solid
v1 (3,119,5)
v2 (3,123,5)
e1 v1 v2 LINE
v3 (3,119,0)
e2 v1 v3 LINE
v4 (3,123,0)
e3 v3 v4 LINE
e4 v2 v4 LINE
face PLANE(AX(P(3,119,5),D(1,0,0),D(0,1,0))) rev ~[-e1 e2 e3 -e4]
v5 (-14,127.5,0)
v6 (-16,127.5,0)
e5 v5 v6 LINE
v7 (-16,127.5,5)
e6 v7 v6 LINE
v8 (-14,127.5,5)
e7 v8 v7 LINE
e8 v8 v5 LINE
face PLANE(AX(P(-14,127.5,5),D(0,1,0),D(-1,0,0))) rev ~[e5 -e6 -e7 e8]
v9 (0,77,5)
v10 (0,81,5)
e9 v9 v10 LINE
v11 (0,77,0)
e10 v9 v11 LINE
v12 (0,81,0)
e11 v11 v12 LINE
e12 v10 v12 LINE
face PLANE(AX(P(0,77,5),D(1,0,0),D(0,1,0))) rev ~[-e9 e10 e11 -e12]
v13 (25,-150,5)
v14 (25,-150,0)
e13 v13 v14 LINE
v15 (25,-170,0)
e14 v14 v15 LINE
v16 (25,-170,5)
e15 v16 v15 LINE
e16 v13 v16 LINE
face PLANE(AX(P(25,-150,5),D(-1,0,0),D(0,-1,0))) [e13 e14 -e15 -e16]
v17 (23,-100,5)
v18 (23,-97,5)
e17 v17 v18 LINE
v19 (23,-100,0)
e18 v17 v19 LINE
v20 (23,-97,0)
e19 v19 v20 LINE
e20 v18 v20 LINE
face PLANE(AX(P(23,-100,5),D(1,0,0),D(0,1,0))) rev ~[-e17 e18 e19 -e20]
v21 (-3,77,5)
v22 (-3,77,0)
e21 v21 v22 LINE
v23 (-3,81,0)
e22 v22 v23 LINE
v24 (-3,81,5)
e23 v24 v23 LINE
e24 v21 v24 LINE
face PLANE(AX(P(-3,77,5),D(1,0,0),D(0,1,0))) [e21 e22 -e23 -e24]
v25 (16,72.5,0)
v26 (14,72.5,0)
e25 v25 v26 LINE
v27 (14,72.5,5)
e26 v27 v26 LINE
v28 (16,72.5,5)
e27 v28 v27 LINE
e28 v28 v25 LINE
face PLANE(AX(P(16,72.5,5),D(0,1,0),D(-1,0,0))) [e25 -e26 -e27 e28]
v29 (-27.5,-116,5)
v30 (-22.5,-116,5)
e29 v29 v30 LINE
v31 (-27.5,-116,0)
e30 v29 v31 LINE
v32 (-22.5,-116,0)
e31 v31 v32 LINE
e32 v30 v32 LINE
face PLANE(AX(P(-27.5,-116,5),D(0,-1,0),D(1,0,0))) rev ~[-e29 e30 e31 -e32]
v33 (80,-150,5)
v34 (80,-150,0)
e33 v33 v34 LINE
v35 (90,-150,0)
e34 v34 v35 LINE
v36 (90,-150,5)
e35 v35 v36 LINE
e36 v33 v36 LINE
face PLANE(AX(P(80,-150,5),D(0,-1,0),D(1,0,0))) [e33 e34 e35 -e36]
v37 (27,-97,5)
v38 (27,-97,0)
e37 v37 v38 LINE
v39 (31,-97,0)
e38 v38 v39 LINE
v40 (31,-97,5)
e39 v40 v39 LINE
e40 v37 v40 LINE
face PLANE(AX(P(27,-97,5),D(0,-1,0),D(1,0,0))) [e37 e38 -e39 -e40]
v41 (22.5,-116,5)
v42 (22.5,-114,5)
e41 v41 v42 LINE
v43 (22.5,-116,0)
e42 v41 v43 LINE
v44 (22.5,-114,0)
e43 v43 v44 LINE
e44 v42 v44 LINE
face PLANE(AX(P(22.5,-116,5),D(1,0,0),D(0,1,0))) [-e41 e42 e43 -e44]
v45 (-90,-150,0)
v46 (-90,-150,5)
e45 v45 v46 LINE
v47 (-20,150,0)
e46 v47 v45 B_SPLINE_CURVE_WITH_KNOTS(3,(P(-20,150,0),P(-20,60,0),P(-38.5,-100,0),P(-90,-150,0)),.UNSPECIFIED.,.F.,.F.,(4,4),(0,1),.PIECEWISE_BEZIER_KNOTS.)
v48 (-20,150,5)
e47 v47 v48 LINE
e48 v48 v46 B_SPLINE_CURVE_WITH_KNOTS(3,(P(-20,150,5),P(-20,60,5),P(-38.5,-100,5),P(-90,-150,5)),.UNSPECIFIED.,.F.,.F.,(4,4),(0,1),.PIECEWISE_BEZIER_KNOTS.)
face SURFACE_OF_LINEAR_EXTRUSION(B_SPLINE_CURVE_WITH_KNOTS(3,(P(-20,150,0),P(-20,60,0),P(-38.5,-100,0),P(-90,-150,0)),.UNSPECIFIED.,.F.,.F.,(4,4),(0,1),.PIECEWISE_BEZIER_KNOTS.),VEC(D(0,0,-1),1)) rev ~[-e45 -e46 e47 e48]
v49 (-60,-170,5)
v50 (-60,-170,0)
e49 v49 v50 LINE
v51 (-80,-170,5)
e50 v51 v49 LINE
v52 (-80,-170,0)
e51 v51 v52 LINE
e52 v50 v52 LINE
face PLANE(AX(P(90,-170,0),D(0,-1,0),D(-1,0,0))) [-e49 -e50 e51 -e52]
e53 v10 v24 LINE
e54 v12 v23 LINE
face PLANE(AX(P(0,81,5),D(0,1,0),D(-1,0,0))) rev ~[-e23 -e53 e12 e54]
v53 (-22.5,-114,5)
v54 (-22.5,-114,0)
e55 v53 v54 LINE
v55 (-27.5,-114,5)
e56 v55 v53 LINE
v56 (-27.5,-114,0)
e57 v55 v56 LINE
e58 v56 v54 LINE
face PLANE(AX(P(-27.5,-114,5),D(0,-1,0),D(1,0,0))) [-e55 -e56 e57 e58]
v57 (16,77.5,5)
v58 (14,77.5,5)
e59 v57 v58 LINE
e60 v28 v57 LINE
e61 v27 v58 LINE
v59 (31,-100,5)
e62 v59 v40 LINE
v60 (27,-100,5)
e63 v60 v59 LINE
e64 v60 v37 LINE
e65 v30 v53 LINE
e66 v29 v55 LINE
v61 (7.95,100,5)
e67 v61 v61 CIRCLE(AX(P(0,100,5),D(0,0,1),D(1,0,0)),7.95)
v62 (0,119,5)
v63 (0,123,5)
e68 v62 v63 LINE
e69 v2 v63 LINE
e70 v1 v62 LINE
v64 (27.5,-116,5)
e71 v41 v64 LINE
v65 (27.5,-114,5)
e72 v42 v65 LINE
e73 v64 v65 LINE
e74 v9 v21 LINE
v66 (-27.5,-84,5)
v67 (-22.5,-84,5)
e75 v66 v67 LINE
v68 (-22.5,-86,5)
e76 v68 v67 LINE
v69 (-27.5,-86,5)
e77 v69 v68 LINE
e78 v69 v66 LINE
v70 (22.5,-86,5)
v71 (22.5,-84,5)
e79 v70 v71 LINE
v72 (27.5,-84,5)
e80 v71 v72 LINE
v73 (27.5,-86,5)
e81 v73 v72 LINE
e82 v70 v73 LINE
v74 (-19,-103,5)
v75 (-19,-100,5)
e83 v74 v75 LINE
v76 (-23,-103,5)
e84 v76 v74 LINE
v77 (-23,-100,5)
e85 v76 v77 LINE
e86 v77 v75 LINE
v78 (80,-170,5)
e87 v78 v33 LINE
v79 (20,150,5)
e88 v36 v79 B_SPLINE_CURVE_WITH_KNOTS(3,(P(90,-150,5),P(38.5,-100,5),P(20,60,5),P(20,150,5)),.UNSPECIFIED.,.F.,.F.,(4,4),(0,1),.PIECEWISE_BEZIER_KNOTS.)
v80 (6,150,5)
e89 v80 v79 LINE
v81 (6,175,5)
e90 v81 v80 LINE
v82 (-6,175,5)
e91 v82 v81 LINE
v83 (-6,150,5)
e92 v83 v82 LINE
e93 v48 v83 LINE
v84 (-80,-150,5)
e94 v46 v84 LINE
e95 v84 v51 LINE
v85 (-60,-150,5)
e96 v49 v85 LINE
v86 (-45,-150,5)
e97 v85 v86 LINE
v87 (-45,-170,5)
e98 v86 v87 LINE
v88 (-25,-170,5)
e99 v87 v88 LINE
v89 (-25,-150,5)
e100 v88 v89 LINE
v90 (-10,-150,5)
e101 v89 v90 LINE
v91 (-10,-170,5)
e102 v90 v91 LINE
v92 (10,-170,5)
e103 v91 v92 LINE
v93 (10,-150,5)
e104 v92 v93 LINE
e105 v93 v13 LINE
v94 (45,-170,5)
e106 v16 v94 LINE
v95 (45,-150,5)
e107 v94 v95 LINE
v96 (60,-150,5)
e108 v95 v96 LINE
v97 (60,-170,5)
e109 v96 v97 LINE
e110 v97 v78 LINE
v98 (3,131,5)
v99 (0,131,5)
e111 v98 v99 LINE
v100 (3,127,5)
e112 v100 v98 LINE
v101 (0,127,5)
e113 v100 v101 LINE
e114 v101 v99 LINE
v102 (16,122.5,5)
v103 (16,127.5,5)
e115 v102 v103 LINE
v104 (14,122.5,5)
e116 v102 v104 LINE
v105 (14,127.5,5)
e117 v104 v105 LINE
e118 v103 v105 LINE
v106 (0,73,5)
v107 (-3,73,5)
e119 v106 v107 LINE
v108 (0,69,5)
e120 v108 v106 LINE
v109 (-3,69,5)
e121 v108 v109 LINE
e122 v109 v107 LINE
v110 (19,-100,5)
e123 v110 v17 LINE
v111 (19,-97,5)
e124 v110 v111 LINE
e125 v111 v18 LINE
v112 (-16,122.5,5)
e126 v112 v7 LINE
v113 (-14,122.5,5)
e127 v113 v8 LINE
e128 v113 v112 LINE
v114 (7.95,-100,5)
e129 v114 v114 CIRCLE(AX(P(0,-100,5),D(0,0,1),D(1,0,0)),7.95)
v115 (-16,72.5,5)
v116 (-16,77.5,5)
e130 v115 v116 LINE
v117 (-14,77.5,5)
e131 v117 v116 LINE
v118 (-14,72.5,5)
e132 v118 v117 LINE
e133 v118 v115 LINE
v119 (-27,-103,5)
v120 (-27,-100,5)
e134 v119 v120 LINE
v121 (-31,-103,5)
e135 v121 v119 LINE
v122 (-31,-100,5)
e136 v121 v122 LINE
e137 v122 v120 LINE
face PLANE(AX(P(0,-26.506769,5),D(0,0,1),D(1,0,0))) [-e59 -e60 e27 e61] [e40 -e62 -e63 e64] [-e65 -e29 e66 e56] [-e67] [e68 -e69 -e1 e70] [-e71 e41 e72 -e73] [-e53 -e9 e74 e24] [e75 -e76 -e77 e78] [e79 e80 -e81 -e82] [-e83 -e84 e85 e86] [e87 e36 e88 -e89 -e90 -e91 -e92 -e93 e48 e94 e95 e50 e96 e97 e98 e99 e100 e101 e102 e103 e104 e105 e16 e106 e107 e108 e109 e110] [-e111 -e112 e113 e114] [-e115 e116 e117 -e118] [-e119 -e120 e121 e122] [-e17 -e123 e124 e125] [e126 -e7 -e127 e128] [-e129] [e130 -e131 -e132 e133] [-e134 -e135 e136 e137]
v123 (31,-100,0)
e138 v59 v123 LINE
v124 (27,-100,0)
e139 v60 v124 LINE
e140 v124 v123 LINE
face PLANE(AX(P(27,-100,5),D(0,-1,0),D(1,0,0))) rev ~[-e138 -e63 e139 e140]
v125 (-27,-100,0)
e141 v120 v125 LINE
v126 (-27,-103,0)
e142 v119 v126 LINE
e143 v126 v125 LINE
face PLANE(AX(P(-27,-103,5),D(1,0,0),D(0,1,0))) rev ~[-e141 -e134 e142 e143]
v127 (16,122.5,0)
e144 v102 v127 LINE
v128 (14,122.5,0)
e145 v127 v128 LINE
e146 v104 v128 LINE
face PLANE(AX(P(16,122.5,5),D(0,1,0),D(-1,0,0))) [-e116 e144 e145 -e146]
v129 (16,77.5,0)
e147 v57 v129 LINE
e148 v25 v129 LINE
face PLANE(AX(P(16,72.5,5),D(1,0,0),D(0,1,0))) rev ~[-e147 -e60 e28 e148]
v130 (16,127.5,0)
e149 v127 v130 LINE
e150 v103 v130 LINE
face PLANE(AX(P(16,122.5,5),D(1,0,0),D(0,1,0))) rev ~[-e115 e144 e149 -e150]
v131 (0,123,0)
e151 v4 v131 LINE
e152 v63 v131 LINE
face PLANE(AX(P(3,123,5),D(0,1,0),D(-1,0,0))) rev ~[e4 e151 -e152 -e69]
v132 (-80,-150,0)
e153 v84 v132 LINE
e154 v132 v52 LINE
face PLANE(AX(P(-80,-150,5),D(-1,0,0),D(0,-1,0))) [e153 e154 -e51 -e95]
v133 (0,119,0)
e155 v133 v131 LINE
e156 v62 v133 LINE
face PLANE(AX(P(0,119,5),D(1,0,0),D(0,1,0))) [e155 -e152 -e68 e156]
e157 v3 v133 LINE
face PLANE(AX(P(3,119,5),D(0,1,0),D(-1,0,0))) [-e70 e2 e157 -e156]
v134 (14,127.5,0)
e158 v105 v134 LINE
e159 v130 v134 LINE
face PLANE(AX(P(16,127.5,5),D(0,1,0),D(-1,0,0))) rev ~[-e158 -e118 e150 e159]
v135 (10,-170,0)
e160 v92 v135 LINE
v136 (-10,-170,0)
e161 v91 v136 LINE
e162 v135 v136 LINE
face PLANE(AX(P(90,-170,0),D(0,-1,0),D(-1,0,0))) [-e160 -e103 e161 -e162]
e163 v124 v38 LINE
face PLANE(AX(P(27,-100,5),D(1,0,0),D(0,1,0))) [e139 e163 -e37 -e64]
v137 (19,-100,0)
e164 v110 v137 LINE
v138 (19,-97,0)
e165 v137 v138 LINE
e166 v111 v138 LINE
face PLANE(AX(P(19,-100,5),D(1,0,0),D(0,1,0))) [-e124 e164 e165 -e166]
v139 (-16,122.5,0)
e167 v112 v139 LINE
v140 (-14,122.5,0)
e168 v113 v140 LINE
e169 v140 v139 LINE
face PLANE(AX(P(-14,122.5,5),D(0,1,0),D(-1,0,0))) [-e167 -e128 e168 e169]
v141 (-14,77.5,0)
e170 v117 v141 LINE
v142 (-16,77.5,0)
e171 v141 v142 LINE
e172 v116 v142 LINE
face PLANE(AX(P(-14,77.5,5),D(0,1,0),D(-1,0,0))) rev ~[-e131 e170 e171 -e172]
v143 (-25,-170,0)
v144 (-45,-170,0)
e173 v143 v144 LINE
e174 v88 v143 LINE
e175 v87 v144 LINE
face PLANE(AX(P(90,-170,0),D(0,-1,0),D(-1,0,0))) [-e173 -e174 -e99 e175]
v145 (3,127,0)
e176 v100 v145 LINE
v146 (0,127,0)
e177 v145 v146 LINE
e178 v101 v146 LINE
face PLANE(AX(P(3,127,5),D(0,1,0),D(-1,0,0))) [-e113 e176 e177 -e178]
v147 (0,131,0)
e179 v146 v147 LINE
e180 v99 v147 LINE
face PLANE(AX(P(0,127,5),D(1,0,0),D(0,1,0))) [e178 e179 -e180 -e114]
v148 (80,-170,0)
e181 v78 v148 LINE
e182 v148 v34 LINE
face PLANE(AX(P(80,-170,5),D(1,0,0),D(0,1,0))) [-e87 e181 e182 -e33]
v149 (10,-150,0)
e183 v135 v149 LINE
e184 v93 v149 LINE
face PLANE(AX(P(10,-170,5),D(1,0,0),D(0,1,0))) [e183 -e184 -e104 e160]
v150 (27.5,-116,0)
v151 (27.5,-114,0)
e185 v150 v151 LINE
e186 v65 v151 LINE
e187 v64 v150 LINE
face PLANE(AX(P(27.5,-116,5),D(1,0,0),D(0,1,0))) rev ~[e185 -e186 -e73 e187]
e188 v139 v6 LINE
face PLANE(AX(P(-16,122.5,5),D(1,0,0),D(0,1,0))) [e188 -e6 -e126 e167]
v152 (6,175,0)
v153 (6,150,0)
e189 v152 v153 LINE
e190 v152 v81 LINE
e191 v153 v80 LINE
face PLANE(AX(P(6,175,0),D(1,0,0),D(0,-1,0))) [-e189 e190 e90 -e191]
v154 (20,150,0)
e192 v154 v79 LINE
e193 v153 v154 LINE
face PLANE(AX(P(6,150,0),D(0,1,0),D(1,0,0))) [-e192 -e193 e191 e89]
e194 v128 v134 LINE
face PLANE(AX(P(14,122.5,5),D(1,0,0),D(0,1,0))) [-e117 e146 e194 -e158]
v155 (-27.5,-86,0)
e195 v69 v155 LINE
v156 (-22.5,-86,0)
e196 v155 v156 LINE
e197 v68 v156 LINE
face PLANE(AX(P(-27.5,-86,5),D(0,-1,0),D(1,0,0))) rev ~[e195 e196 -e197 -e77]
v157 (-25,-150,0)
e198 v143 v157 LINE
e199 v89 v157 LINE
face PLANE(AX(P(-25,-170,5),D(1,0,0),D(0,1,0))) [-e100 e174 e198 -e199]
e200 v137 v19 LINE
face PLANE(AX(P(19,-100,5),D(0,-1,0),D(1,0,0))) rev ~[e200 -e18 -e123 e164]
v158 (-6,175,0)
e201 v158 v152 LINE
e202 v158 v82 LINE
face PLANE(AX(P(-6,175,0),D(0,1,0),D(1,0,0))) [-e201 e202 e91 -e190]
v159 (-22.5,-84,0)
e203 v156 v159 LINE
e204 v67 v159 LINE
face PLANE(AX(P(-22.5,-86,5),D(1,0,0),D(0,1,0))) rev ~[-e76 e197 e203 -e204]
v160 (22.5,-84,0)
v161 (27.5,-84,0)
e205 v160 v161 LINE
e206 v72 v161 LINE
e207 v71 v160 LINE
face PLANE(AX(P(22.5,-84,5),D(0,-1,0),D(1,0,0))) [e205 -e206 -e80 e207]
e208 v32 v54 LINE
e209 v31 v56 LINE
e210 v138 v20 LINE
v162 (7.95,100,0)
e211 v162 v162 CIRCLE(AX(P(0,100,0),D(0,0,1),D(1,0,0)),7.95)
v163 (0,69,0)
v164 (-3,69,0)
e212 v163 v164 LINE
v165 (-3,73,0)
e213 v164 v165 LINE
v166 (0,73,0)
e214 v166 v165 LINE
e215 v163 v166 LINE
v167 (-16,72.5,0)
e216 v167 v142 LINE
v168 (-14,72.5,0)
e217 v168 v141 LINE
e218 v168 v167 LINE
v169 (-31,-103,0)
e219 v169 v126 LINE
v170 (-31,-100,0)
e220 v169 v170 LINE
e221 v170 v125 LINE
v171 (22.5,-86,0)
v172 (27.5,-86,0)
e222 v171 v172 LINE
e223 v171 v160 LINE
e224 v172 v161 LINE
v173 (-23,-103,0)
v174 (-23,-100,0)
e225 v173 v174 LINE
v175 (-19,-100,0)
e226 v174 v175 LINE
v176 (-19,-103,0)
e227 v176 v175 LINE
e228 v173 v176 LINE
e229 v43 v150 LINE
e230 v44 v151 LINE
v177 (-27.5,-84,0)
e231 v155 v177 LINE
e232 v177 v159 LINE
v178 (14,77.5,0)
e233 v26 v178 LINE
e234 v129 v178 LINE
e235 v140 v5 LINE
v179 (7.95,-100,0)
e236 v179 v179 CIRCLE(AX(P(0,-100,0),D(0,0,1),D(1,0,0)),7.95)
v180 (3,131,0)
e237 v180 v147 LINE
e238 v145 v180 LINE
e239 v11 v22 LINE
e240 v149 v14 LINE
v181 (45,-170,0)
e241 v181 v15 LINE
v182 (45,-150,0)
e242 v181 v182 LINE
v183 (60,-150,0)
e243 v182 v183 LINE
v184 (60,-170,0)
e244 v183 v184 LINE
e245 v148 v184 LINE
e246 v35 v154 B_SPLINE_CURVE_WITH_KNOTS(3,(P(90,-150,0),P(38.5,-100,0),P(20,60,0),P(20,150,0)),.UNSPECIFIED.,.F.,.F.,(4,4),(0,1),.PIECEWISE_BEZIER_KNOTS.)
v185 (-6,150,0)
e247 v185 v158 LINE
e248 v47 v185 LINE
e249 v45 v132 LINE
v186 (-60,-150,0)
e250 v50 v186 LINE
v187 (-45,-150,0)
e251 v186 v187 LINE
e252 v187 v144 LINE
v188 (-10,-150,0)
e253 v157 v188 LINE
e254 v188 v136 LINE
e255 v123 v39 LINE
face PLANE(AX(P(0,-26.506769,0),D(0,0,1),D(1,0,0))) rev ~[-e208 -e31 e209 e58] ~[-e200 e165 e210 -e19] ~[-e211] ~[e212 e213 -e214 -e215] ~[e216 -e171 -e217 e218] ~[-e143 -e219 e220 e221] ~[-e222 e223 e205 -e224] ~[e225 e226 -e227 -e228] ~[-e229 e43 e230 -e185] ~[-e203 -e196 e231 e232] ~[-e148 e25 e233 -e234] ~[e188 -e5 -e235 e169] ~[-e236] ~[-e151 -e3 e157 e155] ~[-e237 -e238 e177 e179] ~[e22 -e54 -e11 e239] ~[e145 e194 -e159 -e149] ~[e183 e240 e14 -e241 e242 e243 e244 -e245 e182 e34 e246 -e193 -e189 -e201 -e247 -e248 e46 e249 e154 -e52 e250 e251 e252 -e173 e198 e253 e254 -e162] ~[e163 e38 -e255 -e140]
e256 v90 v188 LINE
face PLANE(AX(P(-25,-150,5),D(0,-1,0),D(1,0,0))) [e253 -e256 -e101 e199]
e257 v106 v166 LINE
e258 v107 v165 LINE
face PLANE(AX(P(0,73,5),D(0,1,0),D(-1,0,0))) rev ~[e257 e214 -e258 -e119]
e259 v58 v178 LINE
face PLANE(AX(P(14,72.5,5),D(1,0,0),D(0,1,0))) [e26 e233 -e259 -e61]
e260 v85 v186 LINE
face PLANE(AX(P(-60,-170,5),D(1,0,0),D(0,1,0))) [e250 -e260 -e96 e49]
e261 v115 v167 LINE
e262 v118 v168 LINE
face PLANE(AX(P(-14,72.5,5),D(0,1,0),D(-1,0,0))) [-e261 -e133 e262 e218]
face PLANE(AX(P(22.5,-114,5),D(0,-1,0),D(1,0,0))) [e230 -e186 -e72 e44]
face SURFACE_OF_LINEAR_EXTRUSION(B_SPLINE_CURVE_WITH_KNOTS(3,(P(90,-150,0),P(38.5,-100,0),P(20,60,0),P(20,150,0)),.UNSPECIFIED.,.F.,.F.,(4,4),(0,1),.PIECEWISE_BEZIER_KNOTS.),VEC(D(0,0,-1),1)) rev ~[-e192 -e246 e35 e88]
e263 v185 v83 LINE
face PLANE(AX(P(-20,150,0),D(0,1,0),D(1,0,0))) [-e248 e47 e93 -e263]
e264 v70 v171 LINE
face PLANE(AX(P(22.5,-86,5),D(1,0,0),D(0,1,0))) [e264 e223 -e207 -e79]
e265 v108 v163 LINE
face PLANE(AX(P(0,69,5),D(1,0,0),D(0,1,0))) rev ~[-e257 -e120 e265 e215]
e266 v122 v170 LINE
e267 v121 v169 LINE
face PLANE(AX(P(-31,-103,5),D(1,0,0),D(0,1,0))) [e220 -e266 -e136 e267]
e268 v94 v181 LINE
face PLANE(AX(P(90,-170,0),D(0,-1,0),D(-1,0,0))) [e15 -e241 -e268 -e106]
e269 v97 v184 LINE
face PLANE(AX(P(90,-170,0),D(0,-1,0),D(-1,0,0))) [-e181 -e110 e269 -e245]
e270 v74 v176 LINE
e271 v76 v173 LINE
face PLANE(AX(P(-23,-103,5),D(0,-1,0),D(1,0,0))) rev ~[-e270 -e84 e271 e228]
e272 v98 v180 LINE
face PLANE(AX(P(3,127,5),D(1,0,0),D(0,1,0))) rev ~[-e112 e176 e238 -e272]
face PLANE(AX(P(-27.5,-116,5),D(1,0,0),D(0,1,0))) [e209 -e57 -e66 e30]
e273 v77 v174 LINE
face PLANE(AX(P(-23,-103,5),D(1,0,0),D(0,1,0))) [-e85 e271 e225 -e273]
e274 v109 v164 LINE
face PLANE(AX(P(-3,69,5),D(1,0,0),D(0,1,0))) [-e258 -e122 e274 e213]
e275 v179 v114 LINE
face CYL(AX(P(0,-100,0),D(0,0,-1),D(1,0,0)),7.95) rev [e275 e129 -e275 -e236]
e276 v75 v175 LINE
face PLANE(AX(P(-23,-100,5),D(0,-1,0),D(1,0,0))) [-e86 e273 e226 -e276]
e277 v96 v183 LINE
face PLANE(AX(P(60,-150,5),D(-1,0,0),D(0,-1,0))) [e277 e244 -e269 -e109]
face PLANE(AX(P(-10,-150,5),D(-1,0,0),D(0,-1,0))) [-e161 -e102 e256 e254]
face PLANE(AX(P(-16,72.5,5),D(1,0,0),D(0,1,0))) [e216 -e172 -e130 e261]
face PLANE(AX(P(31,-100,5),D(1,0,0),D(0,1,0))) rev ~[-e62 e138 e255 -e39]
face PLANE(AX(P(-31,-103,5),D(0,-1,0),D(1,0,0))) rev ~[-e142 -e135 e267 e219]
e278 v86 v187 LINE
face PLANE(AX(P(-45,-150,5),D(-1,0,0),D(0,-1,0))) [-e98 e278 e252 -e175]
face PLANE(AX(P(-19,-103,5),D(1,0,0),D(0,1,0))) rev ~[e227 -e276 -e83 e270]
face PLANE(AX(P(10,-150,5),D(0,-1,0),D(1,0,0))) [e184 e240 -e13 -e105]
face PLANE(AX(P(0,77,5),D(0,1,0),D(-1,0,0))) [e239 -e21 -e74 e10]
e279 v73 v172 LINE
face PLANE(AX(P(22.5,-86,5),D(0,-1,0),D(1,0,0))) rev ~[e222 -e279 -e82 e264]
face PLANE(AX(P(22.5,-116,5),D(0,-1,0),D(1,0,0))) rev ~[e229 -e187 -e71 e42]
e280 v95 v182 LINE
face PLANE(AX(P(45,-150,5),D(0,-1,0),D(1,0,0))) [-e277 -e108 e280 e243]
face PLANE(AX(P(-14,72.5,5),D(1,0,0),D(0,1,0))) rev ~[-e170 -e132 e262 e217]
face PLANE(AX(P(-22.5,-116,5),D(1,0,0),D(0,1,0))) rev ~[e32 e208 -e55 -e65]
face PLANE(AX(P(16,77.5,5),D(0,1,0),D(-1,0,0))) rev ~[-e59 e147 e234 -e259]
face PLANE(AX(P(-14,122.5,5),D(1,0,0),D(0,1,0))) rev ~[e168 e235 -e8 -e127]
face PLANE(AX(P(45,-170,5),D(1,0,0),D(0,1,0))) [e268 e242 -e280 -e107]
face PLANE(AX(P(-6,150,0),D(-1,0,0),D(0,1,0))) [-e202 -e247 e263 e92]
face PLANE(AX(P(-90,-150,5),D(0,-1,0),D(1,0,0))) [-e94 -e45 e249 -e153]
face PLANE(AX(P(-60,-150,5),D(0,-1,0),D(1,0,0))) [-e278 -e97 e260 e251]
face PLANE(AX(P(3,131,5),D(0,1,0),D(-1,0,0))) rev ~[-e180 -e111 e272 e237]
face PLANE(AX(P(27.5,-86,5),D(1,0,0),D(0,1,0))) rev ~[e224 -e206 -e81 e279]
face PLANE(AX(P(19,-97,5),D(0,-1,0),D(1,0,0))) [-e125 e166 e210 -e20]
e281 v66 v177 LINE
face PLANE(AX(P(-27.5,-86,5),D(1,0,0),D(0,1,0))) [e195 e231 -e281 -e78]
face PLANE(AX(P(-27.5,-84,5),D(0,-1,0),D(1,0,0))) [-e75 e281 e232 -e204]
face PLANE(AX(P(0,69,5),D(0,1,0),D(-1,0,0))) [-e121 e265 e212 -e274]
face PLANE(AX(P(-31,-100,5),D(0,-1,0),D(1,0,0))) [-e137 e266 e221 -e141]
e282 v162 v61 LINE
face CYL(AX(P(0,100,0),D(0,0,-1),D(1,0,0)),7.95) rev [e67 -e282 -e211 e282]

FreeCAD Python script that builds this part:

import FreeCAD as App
import Part
import Sketcher
Q = App.Units.Quantity

doc = App.newDocument("Part")
params = doc.addObject("Spreadsheet::Sheet", "Params")
for row, (alias, value) in enumerate([
    ("sketch1_diameter", "15.9 mm"),
    ("sketch1_width", "14 mm"),
    ("sketch1_height", "20 mm"),
    ("sketch1_height2", "25 mm"),
    ("pad1_length", "5 mm"),
    ("sketch2_width", "2 mm"),
    ("sketch2_width2", "3 mm"),
    ("sketch2_height", "5 mm"),
    ("sketch2_height2", "4 mm"),
    ("sketch3_width", "5 mm"),
    ("sketch3_width2", "4 mm"),
    ("sketch3_height", "2 mm"),
    ("sketch3_height2", "3 mm"),
    ("sketch4_width", "10 mm"),
    ("sketch4_width2", "180 mm"),
    ("sketch4_width3", "20 mm"),
    ("sketch4_height", "30 mm"),
], start=1):
    params.set(f"A{row}", alias)
    params.set(f"B{row}", "=" + value)
    params.setAlias(f"B{row}", alias)

body = doc.addObject("PartDesign::Body", "Body")

# Sketch on XY plane
sketch1 = body.newObject("Sketcher::SketchObject", "Sketch")
sketch1.AttachmentSupport = (doc.getObject("XY_Plane"), [""])
sketch1.MapMode = "FlatFace"
sketch1.addGeometry([
    Part.BSplineCurve([App.Vector(-20, 150, 0), App.Vector(-20, 60, 0), App.Vector(-38.5, -100, 0), App.Vector(-90, -150, 0)], [4, 4], [0, 1], False, 3, [1, 1, 1, 1], False),  # 0
    Part.LineSegment(App.Vector(-90, -150, 0), App.Vector(-90, -170, 0)),  # 1
    Part.LineSegment(App.Vector(-90, -170, 0), App.Vector(90, -170, 0)),  # 2
    Part.LineSegment(App.Vector(90, -170, 0), App.Vector(90, -150, 0)),  # 3
    Part.BSplineCurve([App.Vector(90, -150, 0), App.Vector(38.5, -100, 0), App.Vector(20, 60, 0), App.Vector(20, 150, 0)], [4, 4], [0, 1], False, 3, [1, 1, 1, 1], False),  # 4
    Part.LineSegment(App.Vector(20, 150, 0), App.Vector(6, 150, 0)),  # 5
    Part.LineSegment(App.Vector(6, 150, 0), App.Vector(6, 175, 0)),  # 6
    Part.LineSegment(App.Vector(6, 175, 0), App.Vector(-6, 175, 0)),  # 7
    Part.LineSegment(App.Vector(-6, 175, 0), App.Vector(-6, 150, 0)),  # 8
    Part.LineSegment(App.Vector(-6, 150, 0), App.Vector(-20, 150, 0)),  # 9
    Part.Circle(App.Vector(0, -100, 0), App.Vector(0, 0, 1), 7.95),  # 10
    Part.Circle(App.Vector(0, 100, 0), App.Vector(0, 0, 1), 7.95),  # 11
], False)
sketch1.addConstraint([
    Sketcher.Constraint("Block", 0),
    Sketcher.Constraint("Block", 4),
    Sketcher.Constraint("Coincident", 0, 2, 1, 1),
    Sketcher.Constraint("Coincident", 1, 2, 2, 1),
    Sketcher.Constraint("Coincident", 2, 2, 3, 1),
    Sketcher.Constraint("Coincident", 3, 2, 4, 1),
    Sketcher.Constraint("Coincident", 4, 2, 5, 1),
    Sketcher.Constraint("Coincident", 5, 2, 6, 1),
    Sketcher.Constraint("Coincident", 6, 2, 7, 1),
    Sketcher.Constraint("Coincident", 7, 2, 8, 1),
    Sketcher.Constraint("Coincident", 8, 2, 9, 1),
    Sketcher.Constraint("Coincident", 9, 2, 0, 1),
    Sketcher.Constraint("Vertical", 1),
    Sketcher.Constraint("Horizontal", 2),
    Sketcher.Constraint("Vertical", 3),
    Sketcher.Constraint("Horizontal", 5),
    Sketcher.Constraint("Vertical", 6),
    Sketcher.Constraint("Horizontal", 7),
    Sketcher.Constraint("Vertical", 8),
    Sketcher.Constraint("Horizontal", 9),
    Sketcher.Constraint("Equal", 10, 11),
    Sketcher.Constraint("Symmetric", 10, 3, 11, 3, -1, 1),
    Sketcher.Constraint("PointOnObject", 10, 3, -2),
    Sketcher.Constraint("Equal", 5, 9),
    Sketcher.Constraint("Diameter", 10, Q("15.9 mm")),
    Sketcher.Constraint("DistanceX", 5, 2, 5, 1, Q("14 mm")),
    Sketcher.Constraint("DistanceY", 1, 2, 1, 1, Q("20 mm")),
    Sketcher.Constraint("DistanceY", 6, 1, 6, 2, Q("25 mm")),
    Sketcher.Constraint("DistanceY", 10, 3, -1, 1, Q("100 mm")),
])
sketch1.setExpression("Constraints[24]", "Params.sketch1_diameter")
sketch1.setExpression("Constraints[25]", "Params.sketch1_width")
sketch1.setExpression("Constraints[26]", "Params.sketch1_height")
sketch1.setExpression("Constraints[27]", "Params.sketch1_height2")
pad1 = body.newObject("PartDesign::Pad", "Pad")
pad1.Profile = sketch1
pad1.setExpression("Length", "Params.pad1_length")

# Sketch on XY plane
sketch2 = body.newObject("Sketcher::SketchObject", "Sketch001")
sketch2.AttachmentSupport = (doc.getObject("XY_Plane"), [""])
sketch2.MapMode = "FlatFace"
sketch2.AttachmentOffset = App.Placement(App.Vector(0, 0, 5), App.Rotation())
sketch2.addGeometry([
    Part.LineSegment(App.Vector(-16, 72.5, 0), App.Vector(-14, 72.5, 0)),  # 0
    Part.LineSegment(App.Vector(-14, 72.5, 0), App.Vector(-14, 77.5, 0)),  # 1
    Part.LineSegment(App.Vector(-14, 77.5, 0), App.Vector(-16, 77.5, 0)),  # 2
    Part.LineSegment(App.Vector(-16, 77.5, 0), App.Vector(-16, 72.5, 0)),  # 3
    Part.LineSegment(App.Vector(-16, 122.5, 0), App.Vector(-14, 122.5, 0)),  # 4
    Part.LineSegment(App.Vector(-14, 122.5, 0), App.Vector(-14, 127.5, 0)),  # 5
    Part.LineSegment(App.Vector(-14, 127.5, 0), App.Vector(-16, 127.5, 0)),  # 6
    Part.LineSegment(App.Vector(-16, 127.5, 0), App.Vector(-16, 122.5, 0)),  # 7
    Part.LineSegment(App.Vector(14, 122.5, 0), App.Vector(16, 122.5, 0)),  # 8
    Part.LineSegment(App.Vector(16, 122.5, 0), App.Vector(16, 127.5, 0)),  # 9
    Part.LineSegment(App.Vector(16, 127.5, 0), App.Vector(14, 127.5, 0)),  # 10
    Part.LineSegment(App.Vector(14, 127.5, 0), App.Vector(14, 122.5, 0)),  # 11
    Part.LineSegment(App.Vector(14, 72.5, 0), App.Vector(16, 72.5, 0)),  # 12
    Part.LineSegment(App.Vector(16, 72.5, 0), App.Vector(16, 77.5, 0)),  # 13
    Part.LineSegment(App.Vector(16, 77.5, 0), App.Vector(14, 77.5, 0)),  # 14
    Part.LineSegment(App.Vector(14, 77.5, 0), App.Vector(14, 72.5, 0)),  # 15
    Part.LineSegment(App.Vector(-3, 69, 0), App.Vector(0, 69, 0)),  # 16
    Part.LineSegment(App.Vector(0, 69, 0), App.Vector(0, 73, 0)),  # 17
    Part.LineSegment(App.Vector(0, 73, 0), App.Vector(-3, 73, 0)),  # 18
    Part.LineSegment(App.Vector(-3, 73, 0), App.Vector(-3, 69, 0)),  # 19
    Part.LineSegment(App.Vector(-3, 77, 0), App.Vector(0, 77, 0)),  # 20
    Part.LineSegment(App.Vector(0, 77, 0), App.Vector(0, 81, 0)),  # 21
    Part.LineSegment(App.Vector(0, 81, 0), App.Vector(-3, 81, 0)),  # 22
    Part.LineSegment(App.Vector(-3, 81, 0), App.Vector(-3, 77, 0)),  # 23
    Part.LineSegment(App.Vector(0, 119, 0), App.Vector(3, 119, 0)),  # 24
    Part.LineSegment(App.Vector(3, 119, 0), App.Vector(3, 123, 0)),  # 25
    Part.LineSegment(App.Vector(3, 123, 0), App.Vector(0, 123, 0)),  # 26
    Part.LineSegment(App.Vector(0, 123, 0), App.Vector(0, 119, 0)),  # 27
    Part.LineSegment(App.Vector(0, 127, 0), App.Vector(3, 127, 0)),  # 28
    Part.LineSegment(App.Vector(3, 127, 0), App.Vector(3, 131, 0)),  # 29
    Part.LineSegment(App.Vector(3, 131, 0), App.Vector(0, 131, 0)),  # 30
    Part.LineSegment(App.Vector(0, 131, 0), App.Vector(0, 127, 0)),  # 31
], False)
sketch2.addConstraint([
    Sketcher.Constraint("Coincident", 0, 2, 1, 1),
    Sketcher.Constraint("Coincident", 1, 2, 2, 1),
    Sketcher.Constraint("Coincident", 2, 2, 3, 1),
    Sketcher.Constraint("Coincident", 3, 2, 0, 1),
    Sketcher.Constraint("Coincident", 4, 2, 5, 1),
    Sketcher.Constraint("Coincident", 5, 2, 6, 1),
    Sketcher.Constraint("Coincident", 6, 2, 7, 1),
    Sketcher.Constraint("Coincident", 7, 2, 4, 1),
    Sketcher.Constraint("Coincident", 8, 2, 9, 1),
    Sketcher.Constraint("Coincident", 9, 2, 10, 1),
    Sketcher.Constraint("Coincident", 10, 2, 11, 1),
    Sketcher.Constraint("Coincident", 11, 2, 8, 1),
    Sketcher.Constraint("Coincident", 12, 2, 13, 1),
    Sketcher.Constraint("Coincident", 13, 2, 14, 1),
    Sketcher.Constraint("Coincident", 14, 2, 15, 1),
    Sketcher.Constraint("Coincident", 15, 2, 12, 1),
    Sketcher.Constraint("Coincident", 16, 2, 17, 1),
    Sketcher.Constraint("Coincident", 17, 2, 18, 1),
    Sketcher.Constraint("Coincident", 18, 2, 19, 1),
    Sketcher.Constraint("Coincident", 19, 2, 16, 1),
    Sketcher.Constraint("Coincident", 20, 2, 21, 1),
    Sketcher.Constraint("Coincident", 21, 2, 22, 1),
    Sketcher.Constraint("Coincident", 22, 2, 23, 1),
    Sketcher.Constraint("Coincident", 23, 2, 20, 1),
    Sketcher.Constraint("Coincident", 24, 2, 25, 1),
    Sketcher.Constraint("Coincident", 25, 2, 26, 1),
    Sketcher.Constraint("Coincident", 26, 2, 27, 1),
    Sketcher.Constraint("Coincident", 27, 2, 24, 1),
    Sketcher.Constraint("Coincident", 28, 2, 29, 1),
    Sketcher.Constraint("Coincident", 29, 2, 30, 1),
    Sketcher.Constraint("Coincident", 30, 2, 31, 1),
    Sketcher.Constraint("Coincident", 31, 2, 28, 1),
    Sketcher.Constraint("Horizontal", 0),
    Sketcher.Constraint("Vertical", 1),
    Sketcher.Constraint("Horizontal", 2),
    Sketcher.Constraint("Vertical", 3),
    Sketcher.Constraint("Horizontal", 4),
    Sketcher.Constraint("Vertical", 5),
    Sketcher.Constraint("Horizontal", 6),
    Sketcher.Constraint("Vertical", 7),
    Sketcher.Constraint("Horizontal", 8),
    Sketcher.Constraint("Vertical", 9),
    Sketcher.Constraint("Horizontal", 10),
    Sketcher.Constraint("Vertical", 11),
    Sketcher.Constraint("Horizontal", 12),
    Sketcher.Constraint("Vertical", 13),
    Sketcher.Constraint("Horizontal", 14),
    Sketcher.Constraint("Vertical", 15),
    Sketcher.Constraint("Horizontal", 16),
    Sketcher.Constraint("Vertical", 17),
    Sketcher.Constraint("Horizontal", 18),
    Sketcher.Constraint("Vertical", 19),
    Sketcher.Constraint("Horizontal", 20),
    Sketcher.Constraint("Vertical", 21),
    Sketcher.Constraint("Horizontal", 22),
    Sketcher.Constraint("Vertical", 23),
    Sketcher.Constraint("Horizontal", 24),
    Sketcher.Constraint("Vertical", 25),
    Sketcher.Constraint("Horizontal", 26),
    Sketcher.Constraint("Vertical", 27),
    Sketcher.Constraint("Horizontal", 28),
    Sketcher.Constraint("Vertical", 29),
    Sketcher.Constraint("Horizontal", 30),
    Sketcher.Constraint("Vertical", 31),
    Sketcher.Constraint("Symmetric", 7, 2, 8, 2, -2),
    Sketcher.Constraint("Symmetric", 5, 2, 10, 2, -2),
    Sketcher.Constraint("Symmetric", 3, 2, 12, 2, -2),
    Sketcher.Constraint("Symmetric", 1, 2, 14, 2, -2),
    Sketcher.Constraint("PointOnObject", 16, 2, -2),
    Sketcher.Constraint("PointOnObject", 20, 2, -2),
    Sketcher.Constraint("PointOnObject", 26, 2, -2),
    Sketcher.Constraint("PointOnObject", 30, 2, -2),
    Sketcher.Constraint("Vertical", 1, 2, 4, 2),
    Sketcher.Constraint("Vertical", 3, 2, 6, 2),
    Sketcher.Constraint("Vertical", 19, 2, 22, 2),
    Sketcher.Constraint("Vertical", 25, 2, 28, 2),
    Sketcher.Constraint("Equal", 22, 24),
    Sketcher.Constraint("Equal", 3, 5),
    Sketcher.Constraint("Equal", 19, 21),
    Sketcher.Constraint("Equal", 23, 25),
    Sketcher.Constraint("Equal", 27, 29),
    Sketcher.Constraint("DistanceX", 0, 1, 0, 2, Q("2 mm")),
    Sketcher.Constraint("DistanceX", 16, 1, 16, 2, Q("3 mm")),
    Sketcher.Constraint("DistanceY", 1, 1, 1, 2, Q("5 mm")),
    Sketcher.Constraint("DistanceY", 17, 1, 17, 2, Q("4 mm")),
    Sketcher.Constraint("DistanceX", 0, 2, -1, 1, Q("14 mm")),
    Sketcher.Constraint("DistanceY", -1, 1, 16, 2, Q("69 mm")),
    Sketcher.Constraint("DistanceY", -1, 1, 20, 2, Q("77 mm")),
    Sketcher.Constraint("DistanceY", -1, 1, 24, 2, Q("119 mm")),
    Sketcher.Constraint("DistanceY", -1, 1, 28, 2, Q("127 mm")),
    Sketcher.Constraint("DistanceY", 1, 2, 4, 2, Q("45 mm")),
    Sketcher.Constraint("DistanceY", -1, 1, 0, 2, Q("72.5 mm")),
])
sketch2.setExpression("Constraints[81]", "Params.sketch2_width")
sketch2.setExpression("Constraints[82]", "Params.sketch2_width2")
sketch2.setExpression("Constraints[83]", "Params.sketch2_height")
sketch2.setExpression("Constraints[84]", "Params.sketch2_height2")
pocket1 = body.newObject("PartDesign::Pocket", "Pocket")
pocket1.Profile = sketch2
pocket1.Type = "ThroughAll"

# Sketch on XY plane
sketch3 = body.newObject("Sketcher::SketchObject", "Sketch002")
sketch3.AttachmentSupport = (doc.getObject("XY_Plane"), [""])
sketch3.MapMode = "FlatFace"
sketch3.AttachmentOffset = App.Placement(App.Vector(0, 0, 5), App.Rotation())
sketch3.addGeometry([
    Part.LineSegment(App.Vector(-27.5, -84, 0), App.Vector(-27.5, -86, 0)),  # 0
    Part.LineSegment(App.Vector(-27.5, -86, 0), App.Vector(-22.5, -86, 0)),  # 1
    Part.LineSegment(App.Vector(-22.5, -86, 0), App.Vector(-22.5, -84, 0)),  # 2
    Part.LineSegment(App.Vector(-22.5, -84, 0), App.Vector(-27.5, -84, 0)),  # 3
    Part.LineSegment(App.Vector(22.5, -84, 0), App.Vector(22.5, -86, 0)),  # 4
    Part.LineSegment(App.Vector(22.5, -86, 0), App.Vector(27.5, -86, 0)),  # 5
    Part.LineSegment(App.Vector(27.5, -86, 0), App.Vector(27.5, -84, 0)),  # 6
    Part.LineSegment(App.Vector(27.5, -84, 0), App.Vector(22.5, -84, 0)),  # 7
    Part.LineSegment(App.Vector(22.5, -114, 0), App.Vector(22.5, -116, 0)),  # 8
    Part.LineSegment(App.Vector(22.5, -116, 0), App.Vector(27.5, -116, 0)),  # 9
    Part.LineSegment(App.Vector(27.5, -116, 0), App.Vector(27.5, -114, 0)),  # 10
    Part.LineSegment(App.Vector(27.5, -114, 0), App.Vector(22.5, -114, 0)),  # 11
    Part.LineSegment(App.Vector(-27.5, -114, 0), App.Vector(-27.5, -116, 0)),  # 12
    Part.LineSegment(App.Vector(-27.5, -116, 0), App.Vector(-22.5, -116, 0)),  # 13
    Part.LineSegment(App.Vector(-22.5, -116, 0), App.Vector(-22.5, -114, 0)),  # 14
    Part.LineSegment(App.Vector(-22.5, -114, 0), App.Vector(-27.5, -114, 0)),  # 15
    Part.LineSegment(App.Vector(19, -97, 0), App.Vector(19, -100, 0)),  # 16
    Part.LineSegment(App.Vector(19, -100, 0), App.Vector(23, -100, 0)),  # 17
    Part.LineSegment(App.Vector(23, -100, 0), App.Vector(23, -97, 0)),  # 18
    Part.LineSegment(App.Vector(23, -97, 0), App.Vector(19, -97, 0)),  # 19
    Part.LineSegment(App.Vector(27, -97, 0), App.Vector(27, -100, 0)),  # 20
    Part.LineSegment(App.Vector(27, -100, 0), App.Vector(31, -100, 0)),  # 21
    Part.LineSegment(App.Vector(31, -100, 0), App.Vector(31, -97, 0)),  # 22
    Part.LineSegment(App.Vector(31, -97, 0), App.Vector(27, -97, 0)),  # 23
    Part.LineSegment(App.Vector(-31, -100, 0), App.Vector(-31, -103, 0)),  # 24
    Part.LineSegment(App.Vector(-31, -103, 0), App.Vector(-27, -103, 0)),  # 25
    Part.LineSegment(App.Vector(-27, -103, 0), App.Vector(-27, -100, 0)),  # 26
    Part.LineSegment(App.Vector(-27, -100, 0), App.Vector(-31, -100, 0)),  # 27
    Part.LineSegment(App.Vector(-23, -100, 0), App.Vector(-23, -103, 0)),  # 28
    Part.LineSegment(App.Vector(-23, -103, 0), App.Vector(-19, -103, 0)),  # 29
    Part.LineSegment(App.Vector(-19, -103, 0), App.Vector(-19, -100, 0)),  # 30
    Part.LineSegment(App.Vector(-19, -100, 0), App.Vector(-23, -100, 0)),  # 31
], False)
sketch3.addConstraint([
    Sketcher.Constraint("Coincident", 0, 2, 1, 1),
    Sketcher.Constraint("Coincident", 1, 2, 2, 1),
    Sketcher.Constraint("Coincident", 2, 2, 3, 1),
    Sketcher.Constraint("Coincident", 3, 2, 0, 1),
    Sketcher.Constraint("Coincident", 4, 2, 5, 1),
    Sketcher.Constraint("Coincident", 5, 2, 6, 1),
    Sketcher.Constraint("Coincident", 6, 2, 7, 1),
    Sketcher.Constraint("Coincident", 7, 2, 4, 1),
    Sketcher.Constraint("Coincident", 8, 2, 9, 1),
    Sketcher.Constraint("Coincident", 9, 2, 10, 1),
    Sketcher.Constraint("Coincident", 10, 2, 11, 1),
    Sketcher.Constraint("Coincident", 11, 2, 8, 1),
    Sketcher.Constraint("Coincident", 12, 2, 13, 1),
    Sketcher.Constraint("Coincident", 13, 2, 14, 1),
    Sketcher.Constraint("Coincident", 14, 2, 15, 1),
    Sketcher.Constraint("Coincident", 15, 2, 12, 1),
    Sketcher.Constraint("Coincident", 16, 2, 17, 1),
    Sketcher.Constraint("Coincident", 17, 2, 18, 1),
    Sketcher.Constraint("Coincident", 18, 2, 19, 1),
    Sketcher.Constraint("Coincident", 19, 2, 16, 1),
    Sketcher.Constraint("Coincident", 20, 2, 21, 1),
    Sketcher.Constraint("Coincident", 21, 2, 22, 1),
    Sketcher.Constraint("Coincident", 22, 2, 23, 1),
    Sketcher.Constraint("Coincident", 23, 2, 20, 1),
    Sketcher.Constraint("Coincident", 24, 2, 25, 1),
    Sketcher.Constraint("Coincident", 25, 2, 26, 1),
    Sketcher.Constraint("Coincident", 26, 2, 27, 1),
    Sketcher.Constraint("Coincident", 27, 2, 24, 1),
    Sketcher.Constraint("Coincident", 28, 2, 29, 1),
    Sketcher.Constraint("Coincident", 29, 2, 30, 1),
    Sketcher.Constraint("Coincident", 30, 2, 31, 1),
    Sketcher.Constraint("Coincident", 31, 2, 28, 1),
    Sketcher.Constraint("Vertical", 0),
    Sketcher.Constraint("Horizontal", 1),
    Sketcher.Constraint("Vertical", 2),
    Sketcher.Constraint("Horizontal", 3),
    Sketcher.Constraint("Vertical", 4),
    Sketcher.Constraint("Horizontal", 5),
    Sketcher.Constraint("Vertical", 6),
    Sketcher.Constraint("Horizontal", 7),
    Sketcher.Constraint("Vertical", 8),
    Sketcher.Constraint("Horizontal", 9),
    Sketcher.Constraint("Vertical", 10),
    Sketcher.Constraint("Horizontal", 11),
    Sketcher.Constraint("Vertical", 12),
    Sketcher.Constraint("Horizontal", 13),
    Sketcher.Constraint("Vertical", 14),
    Sketcher.Constraint("Horizontal", 15),
    Sketcher.Constraint("Vertical", 16),
    Sketcher.Constraint("Horizontal", 17),
    Sketcher.Constraint("Vertical", 18),
    Sketcher.Constraint("Horizontal", 19),
    Sketcher.Constraint("Vertical", 20),
    Sketcher.Constraint("Horizontal", 21),
    Sketcher.Constraint("Vertical", 22),
    Sketcher.Constraint("Horizontal", 23),
    Sketcher.Constraint("Vertical", 24),
    Sketcher.Constraint("Horizontal", 25),
    Sketcher.Constraint("Vertical", 26),
    Sketcher.Constraint("Horizontal", 27),
    Sketcher.Constraint("Vertical", 28),
    Sketcher.Constraint("Horizontal", 29),
    Sketcher.Constraint("Vertical", 30),
    Sketcher.Constraint("Horizontal", 31),
    Sketcher.Constraint("Symmetric", 1, 2, 4, 2, -2),
    Sketcher.Constraint("Symmetric", 3, 2, 6, 2, -2),
    Sketcher.Constraint("Symmetric", 9, 2, 12, 2, -2),
    Sketcher.Constraint("Symmetric", 11, 2, 14, 2, -2),
    Sketcher.Constraint("Symmetric", 20, 2, 26, 2, -2),
    Sketcher.Constraint("Symmetric", 16, 2, 30, 2, -2),
    Sketcher.Constraint("Horizontal", 17, 2, 20, 2),
    Sketcher.Constraint("Horizontal", 19, 2, 22, 2),
    Sketcher.Constraint("Horizontal", 25, 2, 28, 2),
    Sketcher.Constraint("Vertical", 7, 2, 8, 2),
    Sketcher.Constraint("Vertical", 6, 2, 9, 2),
    Sketcher.Constraint("Equal", 19, 21),
    Sketcher.Constraint("Equal", 23, 25),
    Sketcher.Constraint("Equal", 27, 29),
    Sketcher.Constraint("Equal", 6, 8),
    Sketcher.Constraint("Equal", 22, 24),
    Sketcher.Constraint("DistanceX", 1, 1, 1, 2, Q("5 mm")),
    Sketcher.Constraint("DistanceX", 17, 1, 17, 2, Q("4 mm")),
    Sketcher.Constraint("DistanceY", 0, 2, 0, 1, Q("2 mm")),
    Sketcher.Constraint("DistanceY", 16, 2, 16, 1, Q("3 mm")),
    Sketcher.Constraint("DistanceY", 0, 2, -1, 1, Q("86 mm")),
    Sketcher.Constraint("DistanceY", 8, 2, -1, 1, Q("116 mm")),
    Sketcher.Constraint("DistanceX", -1, 1, 16, 2, Q("19 mm")),
    Sketcher.Constraint("DistanceY", 16, 2, -1, 1, Q("100 mm")),
    Sketcher.Constraint("DistanceX", -1, 1, 20, 2, Q("27 mm")),
    Sketcher.Constraint("DistanceX", 1, 2, 4, 2, Q("45 mm")),
])
sketch3.setExpression("Constraints[80]", "Params.sketch3_width")
sketch3.setExpression("Constraints[81]", "Params.sketch3_width2")
sketch3.setExpression("Constraints[82]", "Params.sketch3_height")
sketch3.setExpression("Constraints[83]", "Params.sketch3_height2")
pocket2 = body.newObject("PartDesign::Pocket", "Pocket001")
pocket2.Profile = sketch3
pocket2.Type = "ThroughAll"

# Sketch on XY plane
sketch4 = body.newObject("Sketcher::SketchObject", "Sketch003")
sketch4.AttachmentSupport = (doc.getObject("XY_Plane"), [""])
sketch4.MapMode = "FlatFace"
sketch4.AttachmentOffset = App.Placement(App.Vector(0, 0, 5), App.Rotation())
sketch4.addGeometry([
    Part.LineSegment(App.Vector(-80, -150, 0), App.Vector(-90, -150, 0)),  # 0
    Part.LineSegment(App.Vector(-90, -150, 0), App.Vector(-90, -180, 0)),  # 1
    Part.LineSegment(App.Vector(-90, -180, 0), App.Vector(90, -180, 0)),  # 2
    Part.LineSegment(App.Vector(90, -180, 0), App.Vector(90, -150, 0)),  # 3
    Part.LineSegment(App.Vector(90, -150, 0), App.Vector(80, -150, 0)),  # 4
    Part.LineSegment(App.Vector(80, -150, 0), App.Vector(80, -170, 0)),  # 5
    Part.LineSegment(App.Vector(80, -170, 0), App.Vector(60, -170, 0)),  # 6
    Part.LineSegment(App.Vector(60, -170, 0), App.Vector(60, -150, 0)),  # 7
    Part.LineSegment(App.Vector(60, -150, 0), App.Vector(45, -150, 0)),  # 8
    Part.LineSegment(App.Vector(45, -150, 0), App.Vector(45, -170, 0)),  # 9
    Part.LineSegment(App.Vector(45, -170, 0), App.Vector(25, -170, 0)),  # 10
    Part.LineSegment(App.Vector(25, -170, 0), App.Vector(25, -150, 0)),  # 11
    Part.LineSegment(App.Vector(25, -150, 0), App.Vector(10, -150, 0)),  # 12
    Part.LineSegment(App.Vector(10, -150, 0), App.Vector(10, -170, 0)),  # 13
    Part.LineSegment(App.Vector(10, -170, 0), App.Vector(-10, -170, 0)),  # 14
    Part.LineSegment(App.Vector(-10, -170, 0), App.Vector(-10, -150, 0)),  # 15
    Part.LineSegment(App.Vector(-10, -150, 0), App.Vector(-25, -150, 0)),  # 16
    Part.LineSegment(App.Vector(-25, -150, 0), App.Vector(-25, -170, 0)),  # 17
    Part.LineSegment(App.Vector(-25, -170, 0), App.Vector(-45, -170, 0)),  # 18
    Part.LineSegment(App.Vector(-45, -170, 0), App.Vector(-45, -150, 0)),  # 19
    Part.LineSegment(App.Vector(-45, -150, 0), App.Vector(-60, -150, 0)),  # 20
    Part.LineSegment(App.Vector(-60, -150, 0), App.Vector(-60, -170, 0)),  # 21
    Part.LineSegment(App.Vector(-60, -170, 0), App.Vector(-80, -170, 0)),  # 22
    Part.LineSegment(App.Vector(-80, -170, 0), App.Vector(-80, -150, 0)),  # 23
], False)
sketch4.addConstraint([
    Sketcher.Constraint("Coincident", 0, 2, 1, 1),
    Sketcher.Constraint("Coincident", 1, 2, 2, 1),
    Sketcher.Constraint("Coincident", 2, 2, 3, 1),
    Sketcher.Constraint("Coincident", 3, 2, 4, 1),
    Sketcher.Constraint("Coincident", 4, 2, 5, 1),
    Sketcher.Constraint("Coincident", 5, 2, 6, 1),
    Sketcher.Constraint("Coincident", 6, 2, 7, 1),
    Sketcher.Constraint("Coincident", 7, 2, 8, 1),
    Sketcher.Constraint("Coincident", 8, 2, 9, 1),
    Sketcher.Constraint("Coincident", 9, 2, 10, 1),
    Sketcher.Constraint("Coincident", 10, 2, 11, 1),
    Sketcher.Constraint("Coincident", 11, 2, 12, 1),
    Sketcher.Constraint("Coincident", 12, 2, 13, 1),
    Sketcher.Constraint("Coincident", 13, 2, 14, 1),
    Sketcher.Constraint("Coincident", 14, 2, 15, 1),
    Sketcher.Constraint("Coincident", 15, 2, 16, 1),
    Sketcher.Constraint("Coincident", 16, 2, 17, 1),
    Sketcher.Constraint("Coincident", 17, 2, 18, 1),
    Sketcher.Constraint("Coincident", 18, 2, 19, 1),
    Sketcher.Constraint("Coincident", 19, 2, 20, 1),
    Sketcher.Constraint("Coincident", 20, 2, 21, 1),
    Sketcher.Constraint("Coincident", 21, 2, 22, 1),
    Sketcher.Constraint("Coincident", 22, 2, 23, 1),
    Sketcher.Constraint("Coincident", 23, 2, 0, 1),
    Sketcher.Constraint("Horizontal", 0),
    Sketcher.Constraint("Vertical", 1),
    Sketcher.Constraint("Horizontal", 2),
    Sketcher.Constraint("Vertical", 3),
    Sketcher.Constraint("Horizontal", 4),
    Sketcher.Constraint("Vertical", 5),
    Sketcher.Constraint("Horizontal", 6),
    Sketcher.Constraint("Vertical", 7),
    Sketcher.Constraint("Horizontal", 8),
    Sketcher.Constraint("Vertical", 9),
    Sketcher.Constraint("Horizontal", 10),
    Sketcher.Constraint("Vertical", 11),
    Sketcher.Constraint("Horizontal", 12),
    Sketcher.Constraint("Vertical", 13),
    Sketcher.Constraint("Horizontal", 14),
    Sketcher.Constraint("Vertical", 15),
    Sketcher.Constraint("Horizontal", 16),
    Sketcher.Constraint("Vertical", 17),
    Sketcher.Constraint("Horizontal", 18),
    Sketcher.Constraint("Vertical", 19),
    Sketcher.Constraint("Horizontal", 20),
    Sketcher.Constraint("Vertical", 21),
    Sketcher.Constraint("Horizontal", 22),
    Sketcher.Constraint("Vertical", 23),
    Sketcher.Constraint("Symmetric", 0, 2, 3, 2, -2),
    Sketcher.Constraint("Symmetric", 12, 2, 15, 2, -2),
    Sketcher.Constraint("Symmetric", 10, 2, 17, 2, -2),
    Sketcher.Constraint("Symmetric", 8, 2, 19, 2, -2),
    Sketcher.Constraint("Symmetric", 6, 2, 21, 2, -2),
    Sketcher.Constraint("Horizontal", 4, 2, 7, 2),
    Sketcher.Constraint("Horizontal", 6, 2, 9, 2),
    Sketcher.Constraint("Horizontal", 8, 2, 11, 2),
    Sketcher.Constraint("Horizontal", 10, 2, 13, 2),
    Sketcher.Constraint("Equal", 0, 4),
    Sketcher.Constraint("Equal", 6, 10),
    Sketcher.Constraint("Equal", 8, 12),
    Sketcher.Constraint("Equal", 10, 14),
    Sketcher.Constraint("Equal", 22, 5),
    Sketcher.Constraint("DistanceX", 0, 2, 0, 1, Q("10 mm")),
    Sketcher.Constraint("DistanceX", 2, 1, 2, 2, Q("180 mm")),
    Sketcher.Constraint("DistanceX", 6, 2, 6, 1, Q("20 mm")),
    Sketcher.Constraint("DistanceY", 1, 2, 1, 1, Q("30 mm")),
    Sketcher.Constraint("DistanceY", 0, 2, -1, 1, Q("150 mm")),
])
sketch4.setExpression("Constraints[62]", "Params.sketch4_width")
sketch4.setExpression("Constraints[63]", "Params.sketch4_width2")
sketch4.setExpression("Constraints[64]", "Params.sketch4_width3")
sketch4.setExpression("Constraints[65]", "Params.sketch4_height")
pocket3 = body.newObject("PartDesign::Pocket", "Pocket002")
pocket3.Profile = sketch4
pocket3.Type = "ThroughAll"

doc.recompute()
